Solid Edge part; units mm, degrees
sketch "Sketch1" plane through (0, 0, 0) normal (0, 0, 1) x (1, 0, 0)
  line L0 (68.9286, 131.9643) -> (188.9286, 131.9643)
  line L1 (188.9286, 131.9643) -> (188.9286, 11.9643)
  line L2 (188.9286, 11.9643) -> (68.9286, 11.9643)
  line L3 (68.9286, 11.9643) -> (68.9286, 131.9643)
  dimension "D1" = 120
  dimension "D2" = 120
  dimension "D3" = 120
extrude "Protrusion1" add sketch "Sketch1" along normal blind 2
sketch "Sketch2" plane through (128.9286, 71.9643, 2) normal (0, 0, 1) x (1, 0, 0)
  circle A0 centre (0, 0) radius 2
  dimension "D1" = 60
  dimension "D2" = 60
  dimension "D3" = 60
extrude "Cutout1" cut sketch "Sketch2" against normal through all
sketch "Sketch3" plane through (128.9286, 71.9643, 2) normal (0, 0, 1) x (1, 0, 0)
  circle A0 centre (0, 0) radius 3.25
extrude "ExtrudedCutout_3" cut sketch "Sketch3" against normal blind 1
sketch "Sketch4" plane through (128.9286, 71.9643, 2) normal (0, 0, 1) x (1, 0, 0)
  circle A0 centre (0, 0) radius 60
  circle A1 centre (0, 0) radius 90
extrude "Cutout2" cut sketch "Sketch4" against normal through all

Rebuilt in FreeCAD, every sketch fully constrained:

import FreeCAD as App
import Part
import Sketcher
from FreeCAD import Vector
Q = App.Units.Quantity


def add_polygon(sketch, points):
    """Adds a closed chain of lines whose ends are joined by coincident constraints."""
    first, n = sketch.GeometryCount, len(points)
    for a, b in zip(points, points[1:] + points[:1]):
        sketch.addGeometry(Part.LineSegment(App.Vector(*a, 0), App.Vector(*b, 0)), False)
    for i in range(n):
        sketch.addConstraint(Sketcher.Constraint("Coincident", first + i, 2, first + (i + 1) % n, 1))

doc = App.newDocument("Part")
body = doc.addObject("PartDesign::Body", "Body")

# Sketch on XY plane
sketch1 = body.newObject("Sketcher::SketchObject", "Sketch")
sketch1.AttachmentSupport = (doc.getObject("XY_Plane"), [""])
sketch1.MapMode = "FlatFace"
add_polygon(sketch1, [(189, 132), (69, 132), (69, 12), (189, 12)])  # lines 0-3
sketch1.addConstraint(Sketcher.Constraint("Horizontal", 0))
sketch1.addConstraint(Sketcher.Constraint("Vertical", 1))
sketch1.addConstraint(Sketcher.Constraint("Horizontal", 2))
sketch1.addConstraint(Sketcher.Constraint("Vertical", 3))
sketch1.addConstraint(Sketcher.Constraint("Equal", 2, 1))
sketch1.addConstraint(Sketcher.Constraint("DistanceX", 0, 2, 0, 1, Q("120 mm")))
sketch1.addConstraint(Sketcher.Constraint("DistanceX", -1, 1, 0, 2, Q("68.9286 mm")))
sketch1.addConstraint(Sketcher.Constraint("DistanceY", -1, 1, 0, 2, Q("131.9643 mm")))
pad1 = body.newObject("PartDesign::Pad", "Pad")
pad1.Profile = sketch1
pad1.Length = 2

# Sketch on XY plane
sketch2 = body.newObject("Sketcher::SketchObject", "Sketch001")
sketch2.AttachmentSupport = (doc.getObject("XY_Plane"), [""])
sketch2.MapMode = "FlatFace"
sketch2.AttachmentOffset = App.Placement(Vector(0, 0, 2), App.Rotation())
sketch2.addGeometry(Part.Circle(Vector(128.9, 72, 0), Vector(0, 0, 1), 2), False)
sketch2.addConstraint(Sketcher.Constraint("Diameter", 0, Q("4 mm")))
sketch2.addConstraint(Sketcher.Constraint("DistanceX", -1, 1, 0, 3, Q("128.9286 mm")))
sketch2.addConstraint(Sketcher.Constraint("DistanceY", -1, 1, 0, 3, Q("71.9643 mm")))
pocket1 = body.newObject("PartDesign::Pocket", "Pocket")
pocket1.Profile = sketch2
pocket1.Type = "ThroughAll"

# Sketch on XY plane
sketch3 = body.newObject("Sketcher::SketchObject", "Sketch002")
sketch3.AttachmentSupport = (doc.getObject("XY_Plane"), [""])
sketch3.MapMode = "FlatFace"
sketch3.AttachmentOffset = App.Placement(Vector(0, 0, 2), App.Rotation())
sketch3.addGeometry(Part.Circle(Vector(128.9, 72, 0), Vector(0, 0, 1), 3.2), False)
sketch3.addConstraint(Sketcher.Constraint("Diameter", 0, Q("6.5 mm")))
sketch3.addConstraint(Sketcher.Constraint("DistanceX", -1, 1, 0, 3, Q("128.9286 mm")))
sketch3.addConstraint(Sketcher.Constraint("DistanceY", -1, 1, 0, 3, Q("71.9643 mm")))
pocket2 = body.newObject("PartDesign::Pocket", "Pocket001")
pocket2.Profile = sketch3
pocket2.Length = 1

# Sketch on XY plane
sketch4 = body.newObject("Sketcher::SketchObject", "Sketch003")
sketch4.AttachmentSupport = (doc.getObject("XY_Plane"), [""])
sketch4.MapMode = "FlatFace"
sketch4.AttachmentOffset = App.Placement(Vector(0, 0, 2), App.Rotation())
sketch4.addGeometry(Part.Circle(Vector(129, 72, 0), Vector(0, 0, 1), 90), False)
sketch4.addGeometry(Part.Circle(Vector(129, 72, 0), Vector(0, 0, 1), 60), False)
sketch4.addConstraint(Sketcher.Constraint("Coincident", 1, 3, 0, 3))
sketch4.addConstraint(Sketcher.Constraint("Diameter", 0, Q("180 mm")))
sketch4.addConstraint(Sketcher.Constraint("Diameter", 1, Q("120 mm")))
sketch4.addConstraint(Sketcher.Constraint("DistanceX", -1, 1, 0, 3, Q("128.9286 mm")))
sketch4.addConstraint(Sketcher.Constraint("DistanceY", -1, 1, 0, 3, Q("71.9643 mm")))
pocket3 = body.newObject("PartDesign::Pocket", "Pocket002")
pocket3.Profile = sketch4
pocket3.Type = "ThroughAll"

doc.recompute()
